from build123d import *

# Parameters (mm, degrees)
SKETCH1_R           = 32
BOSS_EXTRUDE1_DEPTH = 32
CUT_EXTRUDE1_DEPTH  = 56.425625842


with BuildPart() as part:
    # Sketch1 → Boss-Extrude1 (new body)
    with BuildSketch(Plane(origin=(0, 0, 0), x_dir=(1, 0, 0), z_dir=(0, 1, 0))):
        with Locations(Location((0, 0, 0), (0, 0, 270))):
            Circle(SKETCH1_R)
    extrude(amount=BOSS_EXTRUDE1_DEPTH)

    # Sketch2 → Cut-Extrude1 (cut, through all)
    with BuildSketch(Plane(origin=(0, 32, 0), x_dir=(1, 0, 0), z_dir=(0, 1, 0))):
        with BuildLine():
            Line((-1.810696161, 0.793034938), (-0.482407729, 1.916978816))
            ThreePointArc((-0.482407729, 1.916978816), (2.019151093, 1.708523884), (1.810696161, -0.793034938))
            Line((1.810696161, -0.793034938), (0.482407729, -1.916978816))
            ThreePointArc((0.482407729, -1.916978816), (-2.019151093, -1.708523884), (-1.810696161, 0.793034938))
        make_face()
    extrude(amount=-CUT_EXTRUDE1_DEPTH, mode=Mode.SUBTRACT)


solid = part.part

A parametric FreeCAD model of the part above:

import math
import FreeCAD as App
import Part
import Sketcher
Q = App.Units.Quantity

doc = App.newDocument("Part")
body = doc.addObject("PartDesign::Body", "Body")

# Sketch on XZ plane
sketch1 = body.newObject("Sketcher::SketchObject", "Sketch")
sketch1.AttachmentSupport = (doc.getObject("XZ_Plane"), [""])
sketch1.MapMode = "FlatFace"
sketch1.addGeometry(Part.Circle(App.Vector(0, 0, 0), App.Vector(0, 0, 1), 32), False)
sketch1.addConstraint([
    Sketcher.Constraint("Coincident", 0, 3, -1, 1),
    Sketcher.Constraint("Diameter", 0, Q("64 mm")),
])
pad1 = body.newObject("PartDesign::Pad", "Pad")
pad1.Profile = sketch1
pad1.Length = 32
pad1.Reversed = True

# Sketch on XZ plane
sketch2 = body.newObject("Sketcher::SketchObject", "Sketch001")
sketch2.AttachmentSupport = (doc.getObject("XZ_Plane"), [""])
sketch2.MapMode = "FlatFace"
sketch2.AttachmentOffset = App.Placement(App.Vector(0, 0, -32), App.Rotation())
sketch2.addGeometry([
    Part.LineSegment(App.Vector(-0.5, -1.9, 0), App.Vector(-1.8, -0.8, 0)),
    Part.ArcOfCircle(Part.Circle(App.Vector(-0.7, 0.6, 0), App.Vector(0, 0, 1), 1.8), math.radians(50), math.radians(230)),
    Part.LineSegment(App.Vector(0.5, 1.9, 0), App.Vector(1.8, 0.8, 0)),
    Part.ArcOfCircle(Part.Circle(App.Vector(0.7, -0.6, 0), App.Vector(0, 0, 1), 1.8), math.radians(-130), math.radians(50)),
], False)
sketch2.addConstraint([
    Sketcher.Constraint("Tangent", 0, 2, 1, 2),
    Sketcher.Constraint("Tangent", 1, 1, 2, 1),
    Sketcher.Constraint("Tangent", 2, 2, 3, 2),
    Sketcher.Constraint("Tangent", 3, 1, 0, 1),
    Sketcher.Constraint("Equal", 1, 3),
    Sketcher.Constraint("Symmetric", 1, 3, 3, 3, -1, 1),
    Sketcher.Constraint("Radius", 1, Q("1.775 mm")),
    Sketcher.Constraint("Distance", 0, Q("1.74 mm")),
    Sketcher.Constraint("DistanceY", -1, 1, 1, 3, Q("0.561972 mm")),
])
pocket1 = body.newObject("PartDesign::Pocket", "Pocket")
pocket1.Profile = sketch2
pocket1.Type = "ThroughAll"
pocket1.Reversed = True

doc.recompute()
